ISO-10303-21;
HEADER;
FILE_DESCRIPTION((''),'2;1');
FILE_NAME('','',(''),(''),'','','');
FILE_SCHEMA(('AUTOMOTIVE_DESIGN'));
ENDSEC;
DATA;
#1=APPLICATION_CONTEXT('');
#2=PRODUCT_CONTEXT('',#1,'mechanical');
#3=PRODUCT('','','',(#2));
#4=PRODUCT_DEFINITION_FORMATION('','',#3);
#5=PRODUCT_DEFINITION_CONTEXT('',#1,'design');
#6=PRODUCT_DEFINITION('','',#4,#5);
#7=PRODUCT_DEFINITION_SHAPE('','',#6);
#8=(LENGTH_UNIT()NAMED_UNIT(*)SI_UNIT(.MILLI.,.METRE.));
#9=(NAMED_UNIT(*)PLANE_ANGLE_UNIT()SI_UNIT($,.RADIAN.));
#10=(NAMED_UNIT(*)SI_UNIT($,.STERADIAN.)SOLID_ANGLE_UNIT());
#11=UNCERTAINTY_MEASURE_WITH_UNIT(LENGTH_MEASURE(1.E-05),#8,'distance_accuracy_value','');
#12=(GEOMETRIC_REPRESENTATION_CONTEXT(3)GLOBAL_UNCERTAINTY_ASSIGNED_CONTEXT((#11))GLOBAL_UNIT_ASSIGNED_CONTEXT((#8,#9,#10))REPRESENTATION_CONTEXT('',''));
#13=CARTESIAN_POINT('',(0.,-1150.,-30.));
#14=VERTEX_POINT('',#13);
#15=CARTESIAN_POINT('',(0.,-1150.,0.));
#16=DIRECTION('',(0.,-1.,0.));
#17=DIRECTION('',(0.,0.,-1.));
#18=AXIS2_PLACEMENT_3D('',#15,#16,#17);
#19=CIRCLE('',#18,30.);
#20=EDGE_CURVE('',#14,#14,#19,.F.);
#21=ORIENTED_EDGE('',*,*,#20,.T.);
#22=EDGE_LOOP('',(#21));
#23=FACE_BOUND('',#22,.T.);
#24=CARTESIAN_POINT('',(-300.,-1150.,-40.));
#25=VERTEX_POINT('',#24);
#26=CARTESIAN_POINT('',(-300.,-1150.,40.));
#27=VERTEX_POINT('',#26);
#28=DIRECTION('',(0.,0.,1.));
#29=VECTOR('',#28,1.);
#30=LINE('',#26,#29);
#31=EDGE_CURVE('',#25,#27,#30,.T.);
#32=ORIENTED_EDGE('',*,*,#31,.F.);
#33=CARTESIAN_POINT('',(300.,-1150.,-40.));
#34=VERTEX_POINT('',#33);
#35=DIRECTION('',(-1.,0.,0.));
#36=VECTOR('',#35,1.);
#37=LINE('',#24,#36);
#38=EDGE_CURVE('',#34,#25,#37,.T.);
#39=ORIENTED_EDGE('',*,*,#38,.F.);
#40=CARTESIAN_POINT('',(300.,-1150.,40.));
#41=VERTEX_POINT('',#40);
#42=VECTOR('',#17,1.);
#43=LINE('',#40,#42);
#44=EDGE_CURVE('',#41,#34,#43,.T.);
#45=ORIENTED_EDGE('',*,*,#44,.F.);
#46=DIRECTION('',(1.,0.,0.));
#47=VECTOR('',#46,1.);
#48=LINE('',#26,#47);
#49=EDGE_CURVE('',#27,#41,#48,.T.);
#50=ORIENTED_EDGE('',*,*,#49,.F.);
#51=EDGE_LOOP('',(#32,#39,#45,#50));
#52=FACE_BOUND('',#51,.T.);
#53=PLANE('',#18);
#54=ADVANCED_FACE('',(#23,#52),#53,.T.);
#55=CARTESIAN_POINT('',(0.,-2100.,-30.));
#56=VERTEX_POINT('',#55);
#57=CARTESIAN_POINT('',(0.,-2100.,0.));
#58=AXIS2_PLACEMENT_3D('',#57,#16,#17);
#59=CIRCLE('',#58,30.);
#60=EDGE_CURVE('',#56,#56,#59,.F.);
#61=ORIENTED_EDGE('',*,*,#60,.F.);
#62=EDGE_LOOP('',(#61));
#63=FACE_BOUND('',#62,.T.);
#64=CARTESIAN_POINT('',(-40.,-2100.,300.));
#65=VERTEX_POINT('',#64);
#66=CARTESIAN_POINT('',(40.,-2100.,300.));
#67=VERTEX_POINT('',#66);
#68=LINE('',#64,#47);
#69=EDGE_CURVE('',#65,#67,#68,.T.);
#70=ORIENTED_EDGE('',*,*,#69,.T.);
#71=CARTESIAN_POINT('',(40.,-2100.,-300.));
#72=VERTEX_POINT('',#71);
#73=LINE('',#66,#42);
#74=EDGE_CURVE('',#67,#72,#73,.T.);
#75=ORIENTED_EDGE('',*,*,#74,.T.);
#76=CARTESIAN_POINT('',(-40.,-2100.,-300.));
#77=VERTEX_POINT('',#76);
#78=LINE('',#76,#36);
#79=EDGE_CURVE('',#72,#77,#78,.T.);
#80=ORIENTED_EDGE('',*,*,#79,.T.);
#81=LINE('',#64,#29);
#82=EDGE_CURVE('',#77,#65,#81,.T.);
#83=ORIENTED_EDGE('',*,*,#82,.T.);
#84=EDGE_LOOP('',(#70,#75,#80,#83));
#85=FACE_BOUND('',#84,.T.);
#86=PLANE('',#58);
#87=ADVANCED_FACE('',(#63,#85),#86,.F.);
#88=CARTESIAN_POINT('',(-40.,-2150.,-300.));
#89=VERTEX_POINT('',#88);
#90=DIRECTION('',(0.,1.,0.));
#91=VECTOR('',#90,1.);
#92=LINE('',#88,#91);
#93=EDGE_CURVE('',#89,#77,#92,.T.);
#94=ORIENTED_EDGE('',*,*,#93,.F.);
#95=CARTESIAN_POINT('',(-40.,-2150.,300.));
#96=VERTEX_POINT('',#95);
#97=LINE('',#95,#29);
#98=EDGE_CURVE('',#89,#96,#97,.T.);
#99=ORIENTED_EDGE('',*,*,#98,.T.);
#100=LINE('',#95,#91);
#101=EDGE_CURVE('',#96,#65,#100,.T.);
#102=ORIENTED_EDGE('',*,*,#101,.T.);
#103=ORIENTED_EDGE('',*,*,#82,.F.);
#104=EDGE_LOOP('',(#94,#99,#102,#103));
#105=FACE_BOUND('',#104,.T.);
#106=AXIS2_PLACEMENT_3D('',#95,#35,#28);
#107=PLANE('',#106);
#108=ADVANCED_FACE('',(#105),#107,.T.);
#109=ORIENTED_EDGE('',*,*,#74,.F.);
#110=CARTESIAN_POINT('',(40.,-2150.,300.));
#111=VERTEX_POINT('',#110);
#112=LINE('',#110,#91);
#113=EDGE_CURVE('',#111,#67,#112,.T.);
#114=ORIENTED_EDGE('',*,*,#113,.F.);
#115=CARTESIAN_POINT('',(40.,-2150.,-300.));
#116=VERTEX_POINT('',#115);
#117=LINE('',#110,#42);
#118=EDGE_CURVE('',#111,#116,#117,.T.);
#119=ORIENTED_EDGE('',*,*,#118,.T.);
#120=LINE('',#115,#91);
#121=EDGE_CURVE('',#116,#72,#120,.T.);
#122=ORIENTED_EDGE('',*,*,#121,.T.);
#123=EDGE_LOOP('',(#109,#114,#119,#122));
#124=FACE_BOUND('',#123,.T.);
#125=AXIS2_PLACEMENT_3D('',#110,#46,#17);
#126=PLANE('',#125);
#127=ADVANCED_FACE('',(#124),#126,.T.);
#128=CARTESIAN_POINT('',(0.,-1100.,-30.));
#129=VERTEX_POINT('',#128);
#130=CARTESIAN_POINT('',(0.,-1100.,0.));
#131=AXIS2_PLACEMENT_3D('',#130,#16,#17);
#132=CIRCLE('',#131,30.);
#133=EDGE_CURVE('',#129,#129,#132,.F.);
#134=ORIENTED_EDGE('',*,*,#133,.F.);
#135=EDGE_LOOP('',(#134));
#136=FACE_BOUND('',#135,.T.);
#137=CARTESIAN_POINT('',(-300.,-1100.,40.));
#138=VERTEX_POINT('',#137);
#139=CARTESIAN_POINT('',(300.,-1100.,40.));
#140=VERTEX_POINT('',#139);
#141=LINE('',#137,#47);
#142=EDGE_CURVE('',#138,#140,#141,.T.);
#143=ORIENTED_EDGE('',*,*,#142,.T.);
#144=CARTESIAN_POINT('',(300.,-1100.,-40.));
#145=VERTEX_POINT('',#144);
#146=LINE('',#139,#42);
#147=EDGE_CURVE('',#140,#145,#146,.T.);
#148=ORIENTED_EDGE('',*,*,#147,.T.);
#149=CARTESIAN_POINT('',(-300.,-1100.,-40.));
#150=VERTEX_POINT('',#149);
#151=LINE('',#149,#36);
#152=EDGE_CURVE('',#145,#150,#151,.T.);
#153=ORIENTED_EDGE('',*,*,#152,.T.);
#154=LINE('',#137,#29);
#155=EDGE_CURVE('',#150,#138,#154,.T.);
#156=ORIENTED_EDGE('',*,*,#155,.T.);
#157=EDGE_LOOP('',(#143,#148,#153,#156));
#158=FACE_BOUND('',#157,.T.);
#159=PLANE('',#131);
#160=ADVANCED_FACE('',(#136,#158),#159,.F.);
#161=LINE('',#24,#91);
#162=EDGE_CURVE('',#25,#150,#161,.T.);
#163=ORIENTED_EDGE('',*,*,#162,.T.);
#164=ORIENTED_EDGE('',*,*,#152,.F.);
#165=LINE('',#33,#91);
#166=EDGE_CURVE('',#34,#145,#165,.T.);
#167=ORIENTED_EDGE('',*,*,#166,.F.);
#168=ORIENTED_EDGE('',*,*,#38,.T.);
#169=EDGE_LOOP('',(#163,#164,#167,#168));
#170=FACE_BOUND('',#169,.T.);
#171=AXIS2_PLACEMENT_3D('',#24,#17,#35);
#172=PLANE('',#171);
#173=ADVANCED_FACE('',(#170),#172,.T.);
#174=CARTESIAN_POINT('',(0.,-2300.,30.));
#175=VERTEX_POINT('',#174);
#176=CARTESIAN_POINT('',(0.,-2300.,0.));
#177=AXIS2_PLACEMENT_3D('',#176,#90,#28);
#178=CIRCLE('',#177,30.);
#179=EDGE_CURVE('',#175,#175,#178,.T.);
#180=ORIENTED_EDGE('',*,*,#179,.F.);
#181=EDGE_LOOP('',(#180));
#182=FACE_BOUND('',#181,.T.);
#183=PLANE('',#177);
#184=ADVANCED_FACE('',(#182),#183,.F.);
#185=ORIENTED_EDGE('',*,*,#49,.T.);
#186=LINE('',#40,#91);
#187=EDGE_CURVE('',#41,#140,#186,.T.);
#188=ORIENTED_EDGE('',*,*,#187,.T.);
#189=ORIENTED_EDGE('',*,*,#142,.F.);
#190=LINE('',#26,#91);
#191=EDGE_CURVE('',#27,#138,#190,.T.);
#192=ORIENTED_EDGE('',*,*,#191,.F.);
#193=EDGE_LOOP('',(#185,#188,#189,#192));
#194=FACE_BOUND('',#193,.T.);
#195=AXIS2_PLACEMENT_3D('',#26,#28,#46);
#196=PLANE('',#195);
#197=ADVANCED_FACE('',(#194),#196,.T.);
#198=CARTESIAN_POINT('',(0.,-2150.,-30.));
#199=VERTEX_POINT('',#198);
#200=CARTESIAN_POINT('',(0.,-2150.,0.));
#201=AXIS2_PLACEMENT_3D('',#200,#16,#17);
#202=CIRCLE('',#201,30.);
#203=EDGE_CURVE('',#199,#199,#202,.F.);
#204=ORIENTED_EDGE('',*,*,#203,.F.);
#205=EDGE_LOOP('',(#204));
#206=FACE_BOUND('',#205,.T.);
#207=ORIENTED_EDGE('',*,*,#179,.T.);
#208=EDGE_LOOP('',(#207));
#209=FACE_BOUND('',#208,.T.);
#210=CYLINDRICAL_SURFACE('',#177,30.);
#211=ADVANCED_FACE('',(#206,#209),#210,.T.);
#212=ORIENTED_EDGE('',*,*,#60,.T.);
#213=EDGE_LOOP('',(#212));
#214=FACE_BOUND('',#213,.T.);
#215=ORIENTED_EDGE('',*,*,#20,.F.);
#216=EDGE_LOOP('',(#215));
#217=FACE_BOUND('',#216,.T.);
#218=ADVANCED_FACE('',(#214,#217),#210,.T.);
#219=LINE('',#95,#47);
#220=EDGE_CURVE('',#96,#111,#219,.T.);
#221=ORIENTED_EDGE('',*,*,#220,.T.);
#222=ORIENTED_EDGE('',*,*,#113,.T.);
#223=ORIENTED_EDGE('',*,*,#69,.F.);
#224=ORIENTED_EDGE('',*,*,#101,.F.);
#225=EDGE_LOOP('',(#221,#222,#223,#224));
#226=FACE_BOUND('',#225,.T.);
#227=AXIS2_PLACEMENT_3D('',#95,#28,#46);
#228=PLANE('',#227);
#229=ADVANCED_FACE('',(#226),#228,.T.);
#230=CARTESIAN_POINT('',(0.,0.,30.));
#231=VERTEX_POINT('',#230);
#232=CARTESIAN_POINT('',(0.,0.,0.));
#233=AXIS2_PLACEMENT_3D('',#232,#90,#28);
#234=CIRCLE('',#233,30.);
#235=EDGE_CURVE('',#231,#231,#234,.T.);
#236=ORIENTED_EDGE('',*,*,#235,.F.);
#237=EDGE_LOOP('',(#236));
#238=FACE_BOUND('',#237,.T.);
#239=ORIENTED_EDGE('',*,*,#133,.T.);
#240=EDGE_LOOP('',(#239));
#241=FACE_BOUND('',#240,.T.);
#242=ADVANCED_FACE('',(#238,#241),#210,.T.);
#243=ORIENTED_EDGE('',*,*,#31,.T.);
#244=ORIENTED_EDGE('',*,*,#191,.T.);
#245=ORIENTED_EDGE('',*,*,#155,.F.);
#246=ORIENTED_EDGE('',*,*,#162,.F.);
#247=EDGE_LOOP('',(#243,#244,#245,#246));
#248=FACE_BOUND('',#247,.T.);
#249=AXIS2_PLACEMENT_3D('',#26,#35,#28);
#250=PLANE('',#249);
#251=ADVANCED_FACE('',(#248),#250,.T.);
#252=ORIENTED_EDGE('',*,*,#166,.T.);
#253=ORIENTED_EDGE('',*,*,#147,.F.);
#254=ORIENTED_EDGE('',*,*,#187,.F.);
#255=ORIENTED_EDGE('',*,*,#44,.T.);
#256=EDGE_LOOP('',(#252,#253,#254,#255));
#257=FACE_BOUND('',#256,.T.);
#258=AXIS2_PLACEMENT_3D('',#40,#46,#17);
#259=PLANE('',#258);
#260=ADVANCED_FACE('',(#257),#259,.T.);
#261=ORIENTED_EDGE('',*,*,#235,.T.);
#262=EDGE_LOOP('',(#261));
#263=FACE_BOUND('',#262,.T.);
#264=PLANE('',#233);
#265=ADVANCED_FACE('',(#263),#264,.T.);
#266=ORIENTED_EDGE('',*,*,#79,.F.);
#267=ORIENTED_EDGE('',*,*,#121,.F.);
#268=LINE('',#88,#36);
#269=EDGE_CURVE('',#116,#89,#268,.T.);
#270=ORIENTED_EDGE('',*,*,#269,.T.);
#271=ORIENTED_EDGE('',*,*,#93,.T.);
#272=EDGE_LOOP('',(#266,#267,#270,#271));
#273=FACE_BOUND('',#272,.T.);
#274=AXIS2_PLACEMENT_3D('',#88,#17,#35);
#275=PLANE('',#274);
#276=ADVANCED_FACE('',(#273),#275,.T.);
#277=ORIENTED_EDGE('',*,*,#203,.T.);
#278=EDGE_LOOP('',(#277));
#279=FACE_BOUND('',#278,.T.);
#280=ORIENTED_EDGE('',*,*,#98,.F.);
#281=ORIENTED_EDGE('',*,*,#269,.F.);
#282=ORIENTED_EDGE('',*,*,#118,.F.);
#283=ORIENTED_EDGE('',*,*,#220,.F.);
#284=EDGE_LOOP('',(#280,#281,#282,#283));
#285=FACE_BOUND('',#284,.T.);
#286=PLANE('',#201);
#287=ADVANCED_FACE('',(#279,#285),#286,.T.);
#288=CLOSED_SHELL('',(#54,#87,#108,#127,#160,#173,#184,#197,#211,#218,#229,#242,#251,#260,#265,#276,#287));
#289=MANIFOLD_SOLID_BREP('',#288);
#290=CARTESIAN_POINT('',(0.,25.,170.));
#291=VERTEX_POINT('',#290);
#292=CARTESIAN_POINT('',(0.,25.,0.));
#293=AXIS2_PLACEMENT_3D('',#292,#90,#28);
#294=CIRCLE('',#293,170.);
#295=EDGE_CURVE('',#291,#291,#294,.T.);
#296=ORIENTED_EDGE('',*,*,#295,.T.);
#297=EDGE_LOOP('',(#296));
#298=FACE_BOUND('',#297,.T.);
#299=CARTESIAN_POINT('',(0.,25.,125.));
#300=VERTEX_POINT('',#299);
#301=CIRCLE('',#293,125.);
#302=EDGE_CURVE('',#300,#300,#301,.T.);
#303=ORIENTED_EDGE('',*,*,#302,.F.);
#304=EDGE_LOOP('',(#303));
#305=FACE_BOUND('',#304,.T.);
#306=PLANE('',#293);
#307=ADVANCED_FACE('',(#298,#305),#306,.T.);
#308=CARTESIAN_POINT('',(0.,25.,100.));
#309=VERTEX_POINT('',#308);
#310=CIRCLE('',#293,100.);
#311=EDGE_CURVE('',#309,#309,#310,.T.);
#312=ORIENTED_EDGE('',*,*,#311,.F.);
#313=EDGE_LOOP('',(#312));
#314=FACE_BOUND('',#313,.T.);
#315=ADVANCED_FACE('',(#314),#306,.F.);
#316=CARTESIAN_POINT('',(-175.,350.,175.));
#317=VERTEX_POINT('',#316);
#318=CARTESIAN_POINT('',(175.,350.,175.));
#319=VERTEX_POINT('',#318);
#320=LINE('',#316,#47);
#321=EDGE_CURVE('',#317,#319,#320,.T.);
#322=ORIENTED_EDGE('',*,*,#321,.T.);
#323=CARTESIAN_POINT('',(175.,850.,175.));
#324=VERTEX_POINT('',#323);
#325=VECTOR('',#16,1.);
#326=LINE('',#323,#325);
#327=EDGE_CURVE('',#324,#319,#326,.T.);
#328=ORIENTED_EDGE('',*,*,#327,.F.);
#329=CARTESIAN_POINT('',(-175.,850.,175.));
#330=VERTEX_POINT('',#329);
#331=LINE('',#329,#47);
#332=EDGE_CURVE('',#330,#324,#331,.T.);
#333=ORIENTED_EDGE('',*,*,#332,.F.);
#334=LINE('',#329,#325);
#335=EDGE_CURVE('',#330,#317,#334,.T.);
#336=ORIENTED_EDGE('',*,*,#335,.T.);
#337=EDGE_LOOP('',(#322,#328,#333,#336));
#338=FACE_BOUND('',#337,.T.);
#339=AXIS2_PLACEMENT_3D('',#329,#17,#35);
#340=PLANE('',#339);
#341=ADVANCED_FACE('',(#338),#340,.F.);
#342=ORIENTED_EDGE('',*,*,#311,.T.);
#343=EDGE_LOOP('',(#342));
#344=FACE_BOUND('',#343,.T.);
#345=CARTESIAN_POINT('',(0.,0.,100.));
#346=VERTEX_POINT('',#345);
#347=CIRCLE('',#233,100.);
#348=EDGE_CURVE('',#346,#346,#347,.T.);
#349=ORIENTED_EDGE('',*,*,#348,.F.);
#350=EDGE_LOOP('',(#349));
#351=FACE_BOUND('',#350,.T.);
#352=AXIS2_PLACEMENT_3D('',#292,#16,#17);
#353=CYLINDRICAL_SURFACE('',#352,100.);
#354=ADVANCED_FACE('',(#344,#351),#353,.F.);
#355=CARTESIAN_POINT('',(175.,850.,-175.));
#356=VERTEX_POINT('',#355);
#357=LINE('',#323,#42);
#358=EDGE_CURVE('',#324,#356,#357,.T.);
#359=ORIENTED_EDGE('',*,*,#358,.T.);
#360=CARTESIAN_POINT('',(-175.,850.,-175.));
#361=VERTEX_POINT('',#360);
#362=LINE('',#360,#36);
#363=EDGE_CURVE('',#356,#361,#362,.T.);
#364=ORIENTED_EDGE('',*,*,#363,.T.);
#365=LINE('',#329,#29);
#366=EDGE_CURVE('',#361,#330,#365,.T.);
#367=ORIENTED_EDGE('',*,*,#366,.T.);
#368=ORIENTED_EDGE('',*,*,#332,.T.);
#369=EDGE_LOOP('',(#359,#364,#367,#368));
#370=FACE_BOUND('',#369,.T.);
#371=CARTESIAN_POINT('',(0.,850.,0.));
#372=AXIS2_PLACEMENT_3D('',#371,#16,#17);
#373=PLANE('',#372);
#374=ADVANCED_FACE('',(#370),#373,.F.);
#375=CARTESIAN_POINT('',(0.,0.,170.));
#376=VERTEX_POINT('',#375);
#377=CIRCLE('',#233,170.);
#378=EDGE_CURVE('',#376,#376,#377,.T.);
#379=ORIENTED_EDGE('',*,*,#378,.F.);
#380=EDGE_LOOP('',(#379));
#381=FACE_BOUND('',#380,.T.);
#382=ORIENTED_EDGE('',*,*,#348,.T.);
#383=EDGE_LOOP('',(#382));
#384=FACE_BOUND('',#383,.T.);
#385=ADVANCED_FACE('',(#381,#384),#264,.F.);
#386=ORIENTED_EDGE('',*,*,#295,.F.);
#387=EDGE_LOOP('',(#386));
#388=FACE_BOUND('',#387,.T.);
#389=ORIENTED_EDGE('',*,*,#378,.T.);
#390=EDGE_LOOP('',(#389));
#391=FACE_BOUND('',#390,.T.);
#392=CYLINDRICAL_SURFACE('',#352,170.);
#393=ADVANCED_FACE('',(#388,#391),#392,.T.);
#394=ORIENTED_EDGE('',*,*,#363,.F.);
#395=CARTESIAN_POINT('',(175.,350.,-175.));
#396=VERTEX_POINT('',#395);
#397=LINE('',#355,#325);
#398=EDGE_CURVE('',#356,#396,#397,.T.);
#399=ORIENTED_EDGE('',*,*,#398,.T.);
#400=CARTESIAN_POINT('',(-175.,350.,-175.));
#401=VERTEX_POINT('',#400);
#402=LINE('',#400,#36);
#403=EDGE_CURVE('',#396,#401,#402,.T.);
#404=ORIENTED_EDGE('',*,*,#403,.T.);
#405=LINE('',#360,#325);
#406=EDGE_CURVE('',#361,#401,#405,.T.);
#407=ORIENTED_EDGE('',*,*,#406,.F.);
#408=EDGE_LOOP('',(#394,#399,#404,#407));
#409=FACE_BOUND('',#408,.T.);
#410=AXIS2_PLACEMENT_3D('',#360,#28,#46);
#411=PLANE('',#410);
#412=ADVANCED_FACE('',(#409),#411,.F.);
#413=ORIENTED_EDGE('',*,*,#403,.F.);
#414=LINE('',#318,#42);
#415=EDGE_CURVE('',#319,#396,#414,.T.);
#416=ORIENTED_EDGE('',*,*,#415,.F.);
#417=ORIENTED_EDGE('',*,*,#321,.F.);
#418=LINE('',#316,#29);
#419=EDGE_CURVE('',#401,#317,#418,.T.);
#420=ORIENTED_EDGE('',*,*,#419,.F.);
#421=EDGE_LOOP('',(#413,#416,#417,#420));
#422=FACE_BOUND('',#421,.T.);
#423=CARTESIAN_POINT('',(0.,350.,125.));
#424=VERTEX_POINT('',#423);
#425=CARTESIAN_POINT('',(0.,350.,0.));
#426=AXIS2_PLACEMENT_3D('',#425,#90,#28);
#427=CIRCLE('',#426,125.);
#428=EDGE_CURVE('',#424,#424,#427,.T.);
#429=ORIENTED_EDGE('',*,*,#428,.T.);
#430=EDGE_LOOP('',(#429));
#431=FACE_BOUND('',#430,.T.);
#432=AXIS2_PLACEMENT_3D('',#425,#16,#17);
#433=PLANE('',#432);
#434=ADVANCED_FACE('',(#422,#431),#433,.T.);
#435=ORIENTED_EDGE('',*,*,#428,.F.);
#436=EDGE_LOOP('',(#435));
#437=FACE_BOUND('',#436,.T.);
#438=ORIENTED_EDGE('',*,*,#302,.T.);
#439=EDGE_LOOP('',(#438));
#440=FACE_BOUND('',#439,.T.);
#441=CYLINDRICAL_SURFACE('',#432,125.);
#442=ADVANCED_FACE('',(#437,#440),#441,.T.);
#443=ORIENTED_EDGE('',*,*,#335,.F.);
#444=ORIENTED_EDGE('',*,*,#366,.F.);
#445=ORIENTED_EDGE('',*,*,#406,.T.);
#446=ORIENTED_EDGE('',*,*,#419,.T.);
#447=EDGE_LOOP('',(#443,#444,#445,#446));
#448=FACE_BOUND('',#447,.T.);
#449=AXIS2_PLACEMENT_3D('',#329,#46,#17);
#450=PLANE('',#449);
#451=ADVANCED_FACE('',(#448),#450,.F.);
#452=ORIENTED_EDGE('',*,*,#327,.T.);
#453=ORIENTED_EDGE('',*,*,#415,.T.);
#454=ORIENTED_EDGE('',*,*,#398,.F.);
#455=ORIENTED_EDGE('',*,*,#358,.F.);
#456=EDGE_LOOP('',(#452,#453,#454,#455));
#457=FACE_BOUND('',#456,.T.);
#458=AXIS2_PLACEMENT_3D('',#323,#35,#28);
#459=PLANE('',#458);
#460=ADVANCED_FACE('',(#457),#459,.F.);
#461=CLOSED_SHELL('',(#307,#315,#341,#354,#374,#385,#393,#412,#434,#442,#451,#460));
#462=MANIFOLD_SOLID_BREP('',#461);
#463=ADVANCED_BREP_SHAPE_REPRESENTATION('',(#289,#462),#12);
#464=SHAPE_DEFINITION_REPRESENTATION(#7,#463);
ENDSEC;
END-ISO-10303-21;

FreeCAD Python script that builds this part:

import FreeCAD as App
import Part
import Sketcher

V = App.Vector


def add_polygon(sketch, points):
    """Adds a closed chain of lines whose ends are joined by coincident constraints."""
    first, n = sketch.GeometryCount, len(points)
    for a, b in zip(points, points[1:] + points[:1]):
        sketch.addGeometry(Part.LineSegment(App.Vector(*a, 0), App.Vector(*b, 0)), False)
    for i in range(n):
        sketch.addConstraint(Sketcher.Constraint("Coincident", first + i, 2, first + (i + 1) % n, 1))

doc = App.newDocument("Part")
body = doc.addObject("PartDesign::Body", "Body")

# Sketch on XZ plane
sketch1 = doc.addObject("Sketcher::SketchObject", "Sketch")
body.addObject(sketch1)
sketch1.AttachmentSupport = (doc.XZ_Plane, [""])
sketch1.MapMode = "FlatFace"
sketch1.addGeometry(Part.Circle(V(0, 0, 0), V(0, 0, 1), 170), False)
sketch1.addGeometry(Part.Circle(V(0, 0, 0), V(0, 0, 1), 100), False)
sketch1.addConstraint(Sketcher.Constraint("Coincident", 0, 3, -1, 1))
sketch1.addConstraint(Sketcher.Constraint("Coincident", 1, 3, -1, 1))
sketch1.addConstraint(Sketcher.Constraint("Diameter", 0, 340.0))
sketch1.addConstraint(Sketcher.Constraint("Diameter", 1, 200.0))
pad1 = doc.addObject("PartDesign::Pad", "Pad")
body.addObject(pad1)
pad1.Profile = sketch1
pad1.Length = 25
pad1.Reversed = True

# Sketch on XZ plane
sketch2 = doc.addObject("Sketcher::SketchObject", "Sketch001")
body.addObject(sketch2)
sketch2.AttachmentSupport = (doc.XZ_Plane, [""])
sketch2.MapMode = "FlatFace"
sketch2.AttachmentOffset = App.Placement(V(0, 0, -25), App.Rotation())
sketch2.addGeometry(Part.Circle(V(0, 0, 0), V(0, 0, 1), 125), False)
sketch2.addConstraint(Sketcher.Constraint("Coincident", 0, 3, -1, 1))
sketch2.addConstraint(Sketcher.Constraint("Diameter", 0, 250.0))
pad2 = doc.addObject("PartDesign::Pad", "Pad001")
body.addObject(pad2)
pad2.Profile = sketch2
pad2.Length = 325
pad2.Reversed = True

# Sketch on XZ plane
sketch3 = doc.addObject("Sketcher::SketchObject", "Sketch002")
body.addObject(sketch3)
sketch3.AttachmentSupport = (doc.XZ_Plane, [""])
sketch3.MapMode = "FlatFace"
sketch3.AttachmentOffset = App.Placement(V(0, 0, -350), App.Rotation())
add_polygon(sketch3, [(-175, -175), (-175, 175), (175, 175), (175, -175)])  # lines 0-3
sketch3.addConstraint(Sketcher.Constraint("Vertical", 0))
sketch3.addConstraint(Sketcher.Constraint("Horizontal", 1))
sketch3.addConstraint(Sketcher.Constraint("Vertical", 2))
sketch3.addConstraint(Sketcher.Constraint("Horizontal", 3))
sketch3.addConstraint(Sketcher.Constraint("Symmetric", 0, 2, 2, 2, -1, 1))
sketch3.addConstraint(Sketcher.Constraint("Equal", 3, 0))
sketch3.addConstraint(Sketcher.Constraint("DistanceX", 1, 1, 1, 2, 350.0))
pad3 = doc.addObject("PartDesign::Pad", "Pad002")
body.addObject(pad3)
pad3.Profile = sketch3
pad3.Length = 500
pad3.Reversed = True
body2 = doc.addObject("PartDesign::Body", "Body001")

# Sketch on XZ plane
sketch4 = doc.addObject("Sketcher::SketchObject", "Sketch003")
body2.addObject(sketch4)
sketch4.AttachmentSupport = (doc.getObject("XZ_Plane001"), [""])
sketch4.MapMode = "FlatFace"
sketch4.addGeometry(Part.Circle(V(0, 0, 0), V(0, 0, 1), 30), False)
sketch4.addConstraint(Sketcher.Constraint("Coincident", 0, 3, -1, 1))
sketch4.addConstraint(Sketcher.Constraint("Diameter", 0, 60.0))
pad4 = doc.addObject("PartDesign::Pad", "Pad003")
body2.addObject(pad4)
pad4.Profile = sketch4
pad4.Length = 2300

# Sketch on XZ plane
sketch5 = doc.addObject("Sketcher::SketchObject", "Sketch004")
body2.addObject(sketch5)
sketch5.AttachmentSupport = (doc.getObject("XZ_Plane001"), [""])
sketch5.MapMode = "FlatFace"
sketch5.AttachmentOffset = App.Placement(V(0, 0, 1100), App.Rotation())
add_polygon(sketch5, [(-300, -40), (-300, 40), (300, 40), (300, -40)])  # lines 0-3
sketch5.addConstraint(Sketcher.Constraint("Vertical", 0))
sketch5.addConstraint(Sketcher.Constraint("Horizontal", 1))
sketch5.addConstraint(Sketcher.Constraint("Vertical", 2))
sketch5.addConstraint(Sketcher.Constraint("Horizontal", 3))
sketch5.addConstraint(Sketcher.Constraint("Symmetric", 0, 2, 2, 2, -1, 1))
sketch5.addConstraint(Sketcher.Constraint("DistanceX", 1, 1, 1, 2, 600.0))
sketch5.addConstraint(Sketcher.Constraint("DistanceY", 0, 1, 0, 2, 80.0))
pad5 = doc.addObject("PartDesign::Pad", "Pad004")
body2.addObject(pad5)
pad5.Profile = sketch5
pad5.Length = 50

# Sketch on XZ plane
sketch6 = doc.addObject("Sketcher::SketchObject", "Sketch005")
body2.addObject(sketch6)
sketch6.AttachmentSupport = (doc.getObject("XZ_Plane001"), [""])
sketch6.MapMode = "FlatFace"
sketch6.AttachmentOffset = App.Placement(V(0, 0, 2100), App.Rotation())
add_polygon(sketch6, [(-40, -300), (-40, 300), (40, 300), (40, -300)])  # lines 0-3
sketch6.addConstraint(Sketcher.Constraint("Vertical", 0))
sketch6.addConstraint(Sketcher.Constraint("Horizontal", 1))
sketch6.addConstraint(Sketcher.Constraint("Vertical", 2))
sketch6.addConstraint(Sketcher.Constraint("Horizontal", 3))
sketch6.addConstraint(Sketcher.Constraint("Symmetric", 0, 2, 2, 2, -1, 1))
sketch6.addConstraint(Sketcher.Constraint("DistanceX", 1, 1, 1, 2, 80.0))
sketch6.addConstraint(Sketcher.Constraint("DistanceY", 0, 1, 0, 2, 600.0))
pad6 = doc.addObject("PartDesign::Pad", "Pad005")
body2.addObject(pad6)
pad6.Profile = sketch6
pad6.Length = 50

doc.recompute()
